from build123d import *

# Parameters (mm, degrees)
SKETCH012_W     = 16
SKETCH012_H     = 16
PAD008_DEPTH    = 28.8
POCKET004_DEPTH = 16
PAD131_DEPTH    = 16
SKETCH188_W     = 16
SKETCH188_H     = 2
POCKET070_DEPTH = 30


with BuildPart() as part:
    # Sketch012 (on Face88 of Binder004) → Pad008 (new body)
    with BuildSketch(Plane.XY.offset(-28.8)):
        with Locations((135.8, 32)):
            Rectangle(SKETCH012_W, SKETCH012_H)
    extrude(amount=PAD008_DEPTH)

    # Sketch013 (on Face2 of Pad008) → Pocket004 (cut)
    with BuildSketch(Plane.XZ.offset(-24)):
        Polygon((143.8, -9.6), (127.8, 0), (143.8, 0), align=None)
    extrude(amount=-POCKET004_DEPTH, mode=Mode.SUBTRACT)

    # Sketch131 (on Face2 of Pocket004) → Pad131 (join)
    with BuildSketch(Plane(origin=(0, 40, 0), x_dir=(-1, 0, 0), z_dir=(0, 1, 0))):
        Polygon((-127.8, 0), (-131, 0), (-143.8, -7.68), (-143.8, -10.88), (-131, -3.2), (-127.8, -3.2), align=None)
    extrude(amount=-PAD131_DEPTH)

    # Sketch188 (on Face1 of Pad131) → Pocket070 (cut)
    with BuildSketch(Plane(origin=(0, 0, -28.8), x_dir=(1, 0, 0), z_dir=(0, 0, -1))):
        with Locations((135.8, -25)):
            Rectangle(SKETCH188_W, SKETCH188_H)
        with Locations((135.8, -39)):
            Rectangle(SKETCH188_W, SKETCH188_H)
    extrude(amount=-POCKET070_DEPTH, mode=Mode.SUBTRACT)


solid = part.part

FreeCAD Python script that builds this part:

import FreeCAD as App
import Part
import Sketcher

V = App.Vector

doc = App.newDocument("Part")
body = doc.addObject("PartDesign::Body", "Body")

# Sketch on XY plane
sketch1 = body.newObject("Sketcher::SketchObject", "Sketch")
sketch1.AttachmentSupport = (doc.getObject("XY_Plane"), [""])
sketch1.MapMode = "FlatFace"
sketch1.AttachmentOffset = App.Placement(V(0, 0, -28.8), App.Rotation())
sketch1.addGeometry([
    Part.LineSegment(V(127.8, 40, 0), V(127.8, 24, 0)),
    Part.LineSegment(V(127.8, 24, 0), V(143.8, 24, 0)),
    Part.LineSegment(V(143.8, 24, 0), V(143.8, 40, 0)),
    Part.LineSegment(V(143.8, 40, 0), V(127.8, 40, 0)),
], False)
sketch1.addConstraint([
    Sketcher.Constraint("Coincident", 0, 2, 1, 1),
    Sketcher.Constraint("Coincident", 1, 2, 2, 1),
    Sketcher.Constraint("Coincident", 2, 2, 3, 1),
    Sketcher.Constraint("Coincident", 3, 2, 0, 1),
    Sketcher.Constraint("Vertical", 0),
    Sketcher.Constraint("Horizontal", 1),
    Sketcher.Constraint("Vertical", 2),
    Sketcher.Constraint("Horizontal", 3),
    Sketcher.Constraint("Equal", 3, 0),
    Sketcher.Constraint("DistanceX", 1, 1, 1, 2, 16.0),
    Sketcher.Constraint("DistanceY", -1, 1, 0, 2, 24.0),
    Sketcher.Constraint("DistanceX", -1, 1, 0, 2, 127.8),
])
pad1 = body.newObject("PartDesign::Pad", "Pad")
pad1.Profile = sketch1
pad1.Length = 28.8

# Sketch on XZ plane
sketch2 = body.newObject("Sketcher::SketchObject", "Sketch001")
sketch2.AttachmentSupport = (doc.getObject("XZ_Plane"), [""])
sketch2.MapMode = "FlatFace"
sketch2.AttachmentOffset = App.Placement(V(0, 0, -24), App.Rotation())
sketch2.addGeometry([
    Part.LineSegment(V(127.8, 0, 0), V(143.8, -9.6, 0)),
    Part.LineSegment(V(143.8, -9.6, 0), V(143.8, 0, 0)),
    Part.LineSegment(V(143.8, 0, 0), V(127.8, 0, 0)),
], False)
sketch2.addConstraint([
    Sketcher.Constraint("Coincident", 0, 2, 1, 1),
    Sketcher.Constraint("Coincident", 1, 2, 2, 1),
    Sketcher.Constraint("Coincident", 2, 2, 0, 1),
    Sketcher.Constraint("Vertical", 1),
    Sketcher.Constraint("Horizontal", 2),
    Sketcher.Constraint("PointOnObject", 1, 2, -1),
    Sketcher.Constraint("DistanceX", 2, 2, 2, 1, 16.0),
    Sketcher.Constraint("DistanceY", 1, 1, 1, 2, 9.6),
    Sketcher.Constraint("DistanceX", -1, 1, 0, 2, 143.8),
])
pocket1 = body.newObject("PartDesign::Pocket", "Pocket")
pocket1.Profile = sketch2
pocket1.Length = 16

# Sketch on XZ plane
sketch3 = body.newObject("Sketcher::SketchObject", "Sketch002")
sketch3.AttachmentSupport = (doc.getObject("XZ_Plane"), [""])
sketch3.MapMode = "FlatFace"
sketch3.AttachmentOffset = App.Placement(V(0, 0, -40), App.Rotation())
sketch3.addGeometry([
    Part.LineSegment(V(127.8, 0, 0), V(131, 0, 0)),  # 0
    Part.LineSegment(V(131, 0, 0), V(143.8, -7.68, 0)),  # 1
    Part.LineSegment(V(143.8, -7.68, 0), V(143.8, -10.88, 0)),  # 2
    Part.LineSegment(V(143.8, -10.88, 0), V(131, -3.2, 0)),  # 3
    Part.LineSegment(V(131, -3.2, 0), V(127.8, -3.2, 0)),  # 4
    Part.LineSegment(V(127.8, -3.2, 0), V(127.8, 0, 0)),  # 5
], False)
sketch3.addConstraint([
    Sketcher.Constraint("Coincident", 0, 2, 1, 1),
    Sketcher.Constraint("Coincident", 1, 2, 2, 1),
    Sketcher.Constraint("Coincident", 2, 2, 3, 1),
    Sketcher.Constraint("Coincident", 3, 2, 4, 1),
    Sketcher.Constraint("Coincident", 4, 2, 5, 1),
    Sketcher.Constraint("Coincident", 5, 2, 0, 1),
    Sketcher.Constraint("Horizontal", 0),
    Sketcher.Constraint("Vertical", 2),
    Sketcher.Constraint("Horizontal", 4),
    Sketcher.Constraint("Vertical", 5),
    Sketcher.Constraint("PointOnObject", 0, 2, -1),
    Sketcher.Constraint("Parallel", 1, 3),
    Sketcher.Constraint("Vertical", 0, 2, 3, 2),
    Sketcher.Constraint("Equal", 4, 2),
    Sketcher.Constraint("DistanceX", 0, 1, 0, 2, 3.2),
    Sketcher.Constraint("DistanceX", -1, 1, 0, 2, 131.0),
    Sketcher.Constraint("DistanceX", 4, 2, 1, 2, 16.0),
    Sketcher.Constraint("DistanceY", 1, 2, -1, 1, 7.68),
])
pad2 = body.newObject("PartDesign::Pad", "Pad001")
pad2.Profile = sketch3
pad2.Length = 16

# Sketch on XY plane
sketch4 = body.newObject("Sketcher::SketchObject", "Sketch003")
sketch4.AttachmentSupport = (doc.getObject("XY_Plane"), [""])
sketch4.MapMode = "FlatFace"
sketch4.AttachmentOffset = App.Placement(V(0, 0, -28.8), App.Rotation())
sketch4.addGeometry([
    Part.LineSegment(V(127.8, 24, 0), V(127.8, 26, 0)),  # 0
    Part.LineSegment(V(127.8, 26, 0), V(143.8, 26, 0)),  # 1
    Part.LineSegment(V(143.8, 26, 0), V(143.8, 24, 0)),  # 2
    Part.LineSegment(V(143.8, 24, 0), V(127.8, 24, 0)),  # 3
    Part.LineSegment(V(127.8, 38, 0), V(127.8, 40, 0)),  # 4
    Part.LineSegment(V(127.8, 40, 0), V(143.8, 40, 0)),  # 5
    Part.LineSegment(V(143.8, 40, 0), V(143.8, 38, 0)),  # 6
    Part.LineSegment(V(143.8, 38, 0), V(127.8, 38, 0)),  # 7
], False)
sketch4.addConstraint([
    Sketcher.Constraint("Coincident", 0, 2, 1, 1),
    Sketcher.Constraint("Coincident", 1, 2, 2, 1),
    Sketcher.Constraint("Coincident", 2, 2, 3, 1),
    Sketcher.Constraint("Coincident", 3, 2, 0, 1),
    Sketcher.Constraint("Coincident", 4, 2, 5, 1),
    Sketcher.Constraint("Coincident", 5, 2, 6, 1),
    Sketcher.Constraint("Coincident", 6, 2, 7, 1),
    Sketcher.Constraint("Coincident", 7, 2, 4, 1),
    Sketcher.Constraint("Vertical", 0),
    Sketcher.Constraint("Horizontal", 1),
    Sketcher.Constraint("Vertical", 2),
    Sketcher.Constraint("Horizontal", 3),
    Sketcher.Constraint("Vertical", 4),
    Sketcher.Constraint("Horizontal", 5),
    Sketcher.Constraint("Vertical", 6),
    Sketcher.Constraint("Horizontal", 7),
    Sketcher.Constraint("Vertical", 3, 2, 4, 2),
    Sketcher.Constraint("Vertical", 2, 2, 5, 2),
    Sketcher.Constraint("Equal", 2, 4),
    Sketcher.Constraint("DistanceX", 1, 1, 1, 2, 16.0),
    Sketcher.Constraint("DistanceY", 0, 1, 0, 2, 2.0),
    Sketcher.Constraint("DistanceY", -1, 1, 0, 2, 26.0),
    Sketcher.Constraint("DistanceY", -1, 1, 4, 2, 40.0),
    Sketcher.Constraint("DistanceX", -1, 1, 0, 2, 127.8),
])
pocket2 = body.newObject("PartDesign::Pocket", "Pocket001")
pocket2.Profile = sketch4
pocket2.Length = 30
pocket2.Reversed = True

doc.recompute()
